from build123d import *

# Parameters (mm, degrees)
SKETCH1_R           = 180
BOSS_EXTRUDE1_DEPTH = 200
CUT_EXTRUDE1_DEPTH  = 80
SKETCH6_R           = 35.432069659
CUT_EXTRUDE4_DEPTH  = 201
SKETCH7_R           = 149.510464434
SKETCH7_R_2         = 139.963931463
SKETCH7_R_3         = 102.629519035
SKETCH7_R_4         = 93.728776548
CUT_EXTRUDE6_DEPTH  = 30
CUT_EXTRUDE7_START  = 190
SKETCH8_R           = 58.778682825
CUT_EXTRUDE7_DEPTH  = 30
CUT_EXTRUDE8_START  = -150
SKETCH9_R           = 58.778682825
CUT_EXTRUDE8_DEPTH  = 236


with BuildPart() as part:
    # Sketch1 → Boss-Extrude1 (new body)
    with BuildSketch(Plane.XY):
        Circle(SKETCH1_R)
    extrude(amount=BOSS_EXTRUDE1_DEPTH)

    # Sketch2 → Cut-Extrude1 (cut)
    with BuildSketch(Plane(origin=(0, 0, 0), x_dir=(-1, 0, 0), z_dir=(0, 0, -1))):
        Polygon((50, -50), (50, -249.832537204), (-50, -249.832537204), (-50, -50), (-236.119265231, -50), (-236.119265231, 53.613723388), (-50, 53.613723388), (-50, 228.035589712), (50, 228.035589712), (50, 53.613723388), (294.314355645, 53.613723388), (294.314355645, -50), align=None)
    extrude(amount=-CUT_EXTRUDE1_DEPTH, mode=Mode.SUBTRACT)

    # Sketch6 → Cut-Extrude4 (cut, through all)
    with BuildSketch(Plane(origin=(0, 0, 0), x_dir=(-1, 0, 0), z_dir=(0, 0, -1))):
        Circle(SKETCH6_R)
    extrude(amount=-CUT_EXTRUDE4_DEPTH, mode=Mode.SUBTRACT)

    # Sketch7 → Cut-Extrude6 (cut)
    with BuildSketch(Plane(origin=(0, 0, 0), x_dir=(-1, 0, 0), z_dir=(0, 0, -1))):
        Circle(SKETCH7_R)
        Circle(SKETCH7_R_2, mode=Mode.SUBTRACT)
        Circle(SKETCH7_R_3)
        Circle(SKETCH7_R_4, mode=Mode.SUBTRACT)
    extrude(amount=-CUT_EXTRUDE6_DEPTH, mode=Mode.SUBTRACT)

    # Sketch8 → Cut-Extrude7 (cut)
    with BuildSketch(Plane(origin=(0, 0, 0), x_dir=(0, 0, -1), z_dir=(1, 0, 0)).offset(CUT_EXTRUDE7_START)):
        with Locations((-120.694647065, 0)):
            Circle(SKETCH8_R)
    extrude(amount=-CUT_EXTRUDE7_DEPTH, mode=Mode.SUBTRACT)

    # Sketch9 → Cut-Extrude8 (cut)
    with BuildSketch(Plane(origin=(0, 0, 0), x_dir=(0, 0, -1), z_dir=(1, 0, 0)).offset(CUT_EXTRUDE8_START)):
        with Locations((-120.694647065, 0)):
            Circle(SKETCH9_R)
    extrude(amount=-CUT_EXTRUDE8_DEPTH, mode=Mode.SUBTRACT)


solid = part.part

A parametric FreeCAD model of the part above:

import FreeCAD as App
import Part
import Sketcher
from FreeCAD import Vector

doc = App.newDocument("Part")
params = doc.addObject("Spreadsheet::Sheet", "Params")
for row, (alias, value) in enumerate([
    ("sketch1_diameter", "360 mm"),
    ("pad1_length", "200 mm"),
    ("sketch2_width", "100 mm"),
    ("pocket1_length", "80 mm"),
    ("pocket3_length", "30 mm"),
    ("pocket4_length", "30 mm"),
    ("pocket5_length", "236 mm"),
], start=1):
    params.set(f"A{row}", alias)
    params.set(f"B{row}", "=" + value)
    params.setAlias(f"B{row}", alias)

body = doc.addObject("PartDesign::Body", "Body")

# Sketch on XY plane
sketch1 = body.newObject("Sketcher::SketchObject", "Sketch")
sketch1.AttachmentSupport = (doc.getObject("XY_Plane"), [""])
sketch1.MapMode = "FlatFace"
sketch1.addGeometry(Part.Circle(Vector(0, 0, 0), Vector(0, 0, 1), 180), False)
sketch1.addConstraint(Sketcher.Constraint("Coincident", 0, 3, -1, 1))
sketch1.addConstraint(Sketcher.Constraint("Diameter", 0, 360.0))
sketch1.setExpression("Constraints[1]", "Params.sketch1_diameter")
pad1 = body.newObject("PartDesign::Pad", "Pad")
pad1.Profile = sketch1
pad1.setExpression("Length", "Params.pad1_length")

# Sketch on XY plane
sketch2 = body.newObject("Sketcher::SketchObject", "Sketch001")
sketch2.AttachmentSupport = (doc.getObject("XY_Plane"), [""])
sketch2.MapMode = "FlatFace"
sketch2.addGeometry(Part.LineSegment(Vector(-50, -250, 0), Vector(-50, -50, 0)), False)
sketch2.addGeometry(Part.LineSegment(Vector(-50, -50, 0), Vector(-294, -50, 0)), False)
sketch2.addGeometry(Part.LineSegment(Vector(-294, -50, 0), Vector(-294, 54, 0)), False)
sketch2.addGeometry(Part.LineSegment(Vector(-294, 54, 0), Vector(-50, 54, 0)), False)
sketch2.addGeometry(Part.LineSegment(Vector(-50, 54, 0), Vector(-50, 228, 0)), False)
sketch2.addGeometry(Part.LineSegment(Vector(-50, 228, 0), Vector(50, 228, 0)), False)
sketch2.addGeometry(Part.LineSegment(Vector(50, 228, 0), Vector(50, 54, 0)), False)
sketch2.addGeometry(Part.LineSegment(Vector(50, 54, 0), Vector(236, 54, 0)), False)
sketch2.addGeometry(Part.LineSegment(Vector(236, 54, 0), Vector(236, -50, 0)), False)
sketch2.addGeometry(Part.LineSegment(Vector(236, -50, 0), Vector(50, -50, 0)), False)
sketch2.addGeometry(Part.LineSegment(Vector(50, -50, 0), Vector(50, -250, 0)), False)
sketch2.addGeometry(Part.LineSegment(Vector(50, -250, 0), Vector(-50, -250, 0)), False)
sketch2.addConstraint(Sketcher.Constraint("Coincident", 0, 2, 1, 1))
sketch2.addConstraint(Sketcher.Constraint("Coincident", 1, 2, 2, 1))
sketch2.addConstraint(Sketcher.Constraint("Coincident", 2, 2, 3, 1))
sketch2.addConstraint(Sketcher.Constraint("Coincident", 3, 2, 4, 1))
sketch2.addConstraint(Sketcher.Constraint("Coincident", 4, 2, 5, 1))
sketch2.addConstraint(Sketcher.Constraint("Coincident", 5, 2, 6, 1))
sketch2.addConstraint(Sketcher.Constraint("Coincident", 6, 2, 7, 1))
sketch2.addConstraint(Sketcher.Constraint("Coincident", 7, 2, 8, 1))
sketch2.addConstraint(Sketcher.Constraint("Coincident", 8, 2, 9, 1))
sketch2.addConstraint(Sketcher.Constraint("Coincident", 9, 2, 10, 1))
sketch2.addConstraint(Sketcher.Constraint("Coincident", 10, 2, 11, 1))
sketch2.addConstraint(Sketcher.Constraint("Coincident", 11, 2, 0, 1))
sketch2.addConstraint(Sketcher.Constraint("Vertical", 0))
sketch2.addConstraint(Sketcher.Constraint("Horizontal", 1))
sketch2.addConstraint(Sketcher.Constraint("Vertical", 2))
sketch2.addConstraint(Sketcher.Constraint("Horizontal", 3))
sketch2.addConstraint(Sketcher.Constraint("Vertical", 4))
sketch2.addConstraint(Sketcher.Constraint("Horizontal", 5))
sketch2.addConstraint(Sketcher.Constraint("Vertical", 6))
sketch2.addConstraint(Sketcher.Constraint("Horizontal", 7))
sketch2.addConstraint(Sketcher.Constraint("Vertical", 8))
sketch2.addConstraint(Sketcher.Constraint("Horizontal", 9))
sketch2.addConstraint(Sketcher.Constraint("Vertical", 10))
sketch2.addConstraint(Sketcher.Constraint("Horizontal", 11))
sketch2.addConstraint(Sketcher.Constraint("Symmetric", 3, 2, 6, 2, -2))
sketch2.addConstraint(Sketcher.Constraint("Symmetric", 0, 2, 9, 2, -2))
sketch2.addConstraint(Sketcher.Constraint("Vertical", 0, 2, 3, 2))
sketch2.addConstraint(Sketcher.Constraint("DistanceX", 5, 1, 5, 2, 100.0))
sketch2.addConstraint(Sketcher.Constraint("DistanceY", 0, 2, -1, 1, 50.0))
sketch2.addConstraint(Sketcher.Constraint("DistanceX", 1, 2, 1, 1, 244.314356))
sketch2.addConstraint(Sketcher.Constraint("DistanceX", 7, 1, 7, 2, 186.119265))
sketch2.addConstraint(Sketcher.Constraint("DistanceY", 0, 1, 0, 2, 199.832537))
sketch2.addConstraint(Sketcher.Constraint("DistanceY", 2, 1, 2, 2, 103.613723))
sketch2.addConstraint(Sketcher.Constraint("DistanceY", 4, 1, 4, 2, 174.421866))
sketch2.setExpression("Constraints[27]", "Params.sketch2_width")
pocket1 = body.newObject("PartDesign::Pocket", "Pocket")
pocket1.Profile = sketch2
pocket1.setExpression("Length", "Params.pocket1_length")
pocket1.Reversed = True

# Sketch on XY plane
sketch3 = body.newObject("Sketcher::SketchObject", "Sketch002")
sketch3.AttachmentSupport = (doc.getObject("XY_Plane"), [""])
sketch3.MapMode = "FlatFace"
sketch3.addGeometry(Part.Circle(Vector(0, 0, 0), Vector(0, 0, 1), 35), False)
sketch3.addConstraint(Sketcher.Constraint("Coincident", 0, 3, -1, 1))
sketch3.addConstraint(Sketcher.Constraint("Diameter", 0, 70.864139))
pocket2 = body.newObject("PartDesign::Pocket", "Pocket001")
pocket2.Profile = sketch3
pocket2.Type = "ThroughAll"
pocket2.Reversed = True

# Sketch on XY plane
sketch4 = body.newObject("Sketcher::SketchObject", "Sketch003")
sketch4.AttachmentSupport = (doc.getObject("XY_Plane"), [""])
sketch4.MapMode = "FlatFace"
sketch4.addGeometry(Part.Circle(Vector(0, 0, 0), Vector(0, 0, 1), 150), False)
sketch4.addGeometry(Part.Circle(Vector(0, 0, 0), Vector(0, 0, 1), 140), False)
sketch4.addGeometry(Part.Circle(Vector(0, 0, 0), Vector(0, 0, 1), 103), False)
sketch4.addGeometry(Part.Circle(Vector(0, 0, 0), Vector(0, 0, 1), 94), False)
sketch4.addConstraint(Sketcher.Constraint("Coincident", 0, 3, -1, 1))
sketch4.addConstraint(Sketcher.Constraint("Coincident", 1, 3, -1, 1))
sketch4.addConstraint(Sketcher.Constraint("Coincident", 2, 3, -1, 1))
sketch4.addConstraint(Sketcher.Constraint("Coincident", 3, 3, -1, 1))
sketch4.addConstraint(Sketcher.Constraint("Diameter", 0, 299.020929))
sketch4.addConstraint(Sketcher.Constraint("Diameter", 2, 205.259038))
sketch4.addConstraint(Sketcher.Constraint("Diameter", 1, 279.927863))
sketch4.addConstraint(Sketcher.Constraint("Diameter", 3, 187.457553))
pocket3 = body.newObject("PartDesign::Pocket", "Pocket002")
pocket3.Profile = sketch4
pocket3.setExpression("Length", "Params.pocket3_length")
pocket3.Reversed = True

# Sketch on YZ plane
sketch5 = body.newObject("Sketcher::SketchObject", "Sketch004")
sketch5.AttachmentSupport = (doc.getObject("YZ_Plane"), [""])
sketch5.MapMode = "FlatFace"
sketch5.AttachmentOffset = App.Placement(Vector(0, 0, 190), App.Rotation())
sketch5.addGeometry(Part.Circle(Vector(0, 121, 0), Vector(0, 0, 1), 59), False)
sketch5.addConstraint(Sketcher.Constraint("PointOnObject", 0, 3, -2))
sketch5.addConstraint(Sketcher.Constraint("Diameter", 0, 117.557366))
sketch5.addConstraint(Sketcher.Constraint("DistanceY", -1, 1, 0, 3, 120.694647))
pocket4 = body.newObject("PartDesign::Pocket", "Pocket003")
pocket4.Profile = sketch5
pocket4.setExpression("Length", "Params.pocket4_length")

# Sketch on YZ plane
sketch6 = body.newObject("Sketcher::SketchObject", "Sketch005")
sketch6.AttachmentSupport = (doc.getObject("YZ_Plane"), [""])
sketch6.MapMode = "FlatFace"
sketch6.AttachmentOffset = App.Placement(Vector(0, 0, -150), App.Rotation())
sketch6.addGeometry(Part.Circle(Vector(0, 121, 0), Vector(0, 0, 1), 59), False)
sketch6.addConstraint(Sketcher.Constraint("PointOnObject", 0, 3, -2))
sketch6.addConstraint(Sketcher.Constraint("Diameter", 0, 117.557366))
sketch6.addConstraint(Sketcher.Constraint("DistanceY", -1, 1, 0, 3, 120.694647))
pocket5 = body.newObject("PartDesign::Pocket", "Pocket004")
pocket5.Profile = sketch6
pocket5.setExpression("Length", "Params.pocket5_length")

doc.recompute()
